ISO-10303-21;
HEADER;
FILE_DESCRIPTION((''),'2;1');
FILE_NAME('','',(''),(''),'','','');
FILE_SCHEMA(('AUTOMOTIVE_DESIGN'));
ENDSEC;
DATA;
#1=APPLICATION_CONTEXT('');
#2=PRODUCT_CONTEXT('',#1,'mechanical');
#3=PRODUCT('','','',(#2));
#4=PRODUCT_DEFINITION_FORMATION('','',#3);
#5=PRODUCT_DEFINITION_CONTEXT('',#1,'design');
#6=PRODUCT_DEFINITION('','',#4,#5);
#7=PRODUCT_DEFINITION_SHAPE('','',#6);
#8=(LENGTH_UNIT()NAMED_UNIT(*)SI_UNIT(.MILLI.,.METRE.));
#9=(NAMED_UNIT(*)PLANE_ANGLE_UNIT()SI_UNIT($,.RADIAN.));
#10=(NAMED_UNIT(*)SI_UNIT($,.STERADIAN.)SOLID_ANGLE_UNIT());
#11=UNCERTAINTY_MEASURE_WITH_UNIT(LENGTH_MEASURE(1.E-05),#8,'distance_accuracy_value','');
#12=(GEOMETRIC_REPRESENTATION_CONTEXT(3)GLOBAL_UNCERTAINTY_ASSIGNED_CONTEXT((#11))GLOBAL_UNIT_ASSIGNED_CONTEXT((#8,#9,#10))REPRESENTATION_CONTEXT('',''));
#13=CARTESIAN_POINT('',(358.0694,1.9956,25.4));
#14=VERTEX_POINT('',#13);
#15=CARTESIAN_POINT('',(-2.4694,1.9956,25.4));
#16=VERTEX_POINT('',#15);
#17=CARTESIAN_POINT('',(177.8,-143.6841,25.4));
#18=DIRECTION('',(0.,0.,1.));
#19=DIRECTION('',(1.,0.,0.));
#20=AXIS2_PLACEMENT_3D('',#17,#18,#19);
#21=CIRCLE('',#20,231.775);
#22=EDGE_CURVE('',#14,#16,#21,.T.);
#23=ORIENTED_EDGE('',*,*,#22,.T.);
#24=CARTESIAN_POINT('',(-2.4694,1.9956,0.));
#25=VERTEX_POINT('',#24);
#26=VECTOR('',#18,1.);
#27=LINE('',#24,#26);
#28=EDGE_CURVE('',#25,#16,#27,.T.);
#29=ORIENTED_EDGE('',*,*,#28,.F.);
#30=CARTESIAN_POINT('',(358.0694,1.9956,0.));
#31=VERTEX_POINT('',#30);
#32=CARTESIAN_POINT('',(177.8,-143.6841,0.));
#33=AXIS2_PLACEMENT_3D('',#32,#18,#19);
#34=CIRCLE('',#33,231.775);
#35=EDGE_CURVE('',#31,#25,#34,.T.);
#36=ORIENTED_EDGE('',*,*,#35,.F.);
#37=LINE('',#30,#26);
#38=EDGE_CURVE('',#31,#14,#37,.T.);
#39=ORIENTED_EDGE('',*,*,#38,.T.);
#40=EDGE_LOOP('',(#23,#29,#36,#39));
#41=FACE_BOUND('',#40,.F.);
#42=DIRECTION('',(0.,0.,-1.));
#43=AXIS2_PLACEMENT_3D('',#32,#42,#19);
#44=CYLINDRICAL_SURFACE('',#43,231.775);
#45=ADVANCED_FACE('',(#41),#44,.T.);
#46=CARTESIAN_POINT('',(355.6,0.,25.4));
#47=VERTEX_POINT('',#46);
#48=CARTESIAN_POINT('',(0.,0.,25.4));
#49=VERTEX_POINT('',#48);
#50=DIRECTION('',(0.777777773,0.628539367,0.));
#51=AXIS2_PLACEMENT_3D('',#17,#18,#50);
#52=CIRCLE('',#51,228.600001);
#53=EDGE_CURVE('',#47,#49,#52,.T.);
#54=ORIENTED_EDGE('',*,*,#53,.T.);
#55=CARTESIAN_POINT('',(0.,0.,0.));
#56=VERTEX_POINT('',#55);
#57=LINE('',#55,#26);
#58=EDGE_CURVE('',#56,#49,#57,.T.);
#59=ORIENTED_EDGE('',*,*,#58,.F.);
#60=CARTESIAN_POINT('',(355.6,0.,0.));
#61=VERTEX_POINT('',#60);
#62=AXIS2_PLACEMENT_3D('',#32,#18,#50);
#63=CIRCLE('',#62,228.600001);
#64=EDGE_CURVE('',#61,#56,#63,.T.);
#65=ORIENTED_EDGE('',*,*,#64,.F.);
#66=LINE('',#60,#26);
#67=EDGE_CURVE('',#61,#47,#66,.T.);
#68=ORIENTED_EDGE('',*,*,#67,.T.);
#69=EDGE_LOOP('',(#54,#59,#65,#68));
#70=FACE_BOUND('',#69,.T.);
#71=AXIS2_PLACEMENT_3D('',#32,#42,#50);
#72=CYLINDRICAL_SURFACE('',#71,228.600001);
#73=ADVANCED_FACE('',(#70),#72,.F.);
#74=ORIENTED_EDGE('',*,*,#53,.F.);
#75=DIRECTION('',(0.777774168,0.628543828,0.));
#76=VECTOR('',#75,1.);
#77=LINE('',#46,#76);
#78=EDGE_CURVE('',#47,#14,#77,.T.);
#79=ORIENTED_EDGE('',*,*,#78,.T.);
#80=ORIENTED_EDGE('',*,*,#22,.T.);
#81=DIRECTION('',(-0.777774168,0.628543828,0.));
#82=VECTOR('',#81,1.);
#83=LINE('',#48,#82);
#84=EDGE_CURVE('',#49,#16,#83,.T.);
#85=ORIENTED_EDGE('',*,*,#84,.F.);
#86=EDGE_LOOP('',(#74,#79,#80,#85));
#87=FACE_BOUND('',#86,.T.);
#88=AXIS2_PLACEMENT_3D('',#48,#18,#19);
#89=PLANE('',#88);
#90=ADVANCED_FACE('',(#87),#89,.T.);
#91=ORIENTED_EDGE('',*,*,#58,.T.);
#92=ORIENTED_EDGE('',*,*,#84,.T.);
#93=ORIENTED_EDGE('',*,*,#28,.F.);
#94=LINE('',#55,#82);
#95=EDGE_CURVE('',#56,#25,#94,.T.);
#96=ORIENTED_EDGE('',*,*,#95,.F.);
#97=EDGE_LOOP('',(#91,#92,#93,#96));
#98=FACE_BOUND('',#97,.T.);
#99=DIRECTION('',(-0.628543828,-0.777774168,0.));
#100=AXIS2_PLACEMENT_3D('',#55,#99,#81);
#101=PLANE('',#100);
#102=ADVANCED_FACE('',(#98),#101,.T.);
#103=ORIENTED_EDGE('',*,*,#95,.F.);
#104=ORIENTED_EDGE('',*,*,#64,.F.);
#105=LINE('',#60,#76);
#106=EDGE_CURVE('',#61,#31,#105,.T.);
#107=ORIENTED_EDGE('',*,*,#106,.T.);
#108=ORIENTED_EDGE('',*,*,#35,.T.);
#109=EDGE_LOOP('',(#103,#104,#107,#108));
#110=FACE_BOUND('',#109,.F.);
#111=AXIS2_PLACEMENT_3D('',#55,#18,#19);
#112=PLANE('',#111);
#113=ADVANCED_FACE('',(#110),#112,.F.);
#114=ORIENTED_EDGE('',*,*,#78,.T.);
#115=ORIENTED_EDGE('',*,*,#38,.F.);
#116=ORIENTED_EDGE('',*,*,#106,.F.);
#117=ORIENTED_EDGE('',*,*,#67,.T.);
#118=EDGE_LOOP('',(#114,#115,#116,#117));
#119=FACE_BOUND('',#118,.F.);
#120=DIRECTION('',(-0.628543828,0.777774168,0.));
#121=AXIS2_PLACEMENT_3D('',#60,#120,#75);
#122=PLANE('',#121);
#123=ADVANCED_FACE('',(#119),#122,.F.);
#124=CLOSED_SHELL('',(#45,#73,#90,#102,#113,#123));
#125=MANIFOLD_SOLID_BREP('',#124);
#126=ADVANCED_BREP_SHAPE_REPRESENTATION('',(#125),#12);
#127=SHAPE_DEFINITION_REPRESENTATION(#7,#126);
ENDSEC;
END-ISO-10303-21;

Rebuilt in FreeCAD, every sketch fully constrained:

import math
import FreeCAD as App
import Part
import Sketcher
Q = App.Units.Quantity

doc = App.newDocument("Part")
params = doc.addObject("Spreadsheet::Sheet", "Params")
for row, (alias, value) in enumerate([
    ("sketch1_radius", "9 in"),
    ("sketch1_radius2", "9.125 in"),
    ("pad1_length", "1 in"),
], start=1):
    params.set(f"A{row}", alias)
    params.set(f"B{row}", "=" + value)
    params.setAlias(f"B{row}", alias)

body = doc.addObject("PartDesign::Body", "Body")

sketch1 = body.newObject("Sketcher::SketchObject", "Sketch")
sketch1.AttachmentSupport = (doc.getObject("XY_Plane"), [""])
sketch1.MapMode = "FlatFace"
sketch1.addGeometry([
    Part.LineSegment(App.Vector(-2.5, 2, 0), App.Vector(0, 0, 0)),
    Part.ArcOfCircle(Part.Circle(App.Vector(177.8, -143.7, 0), App.Vector(0, 0, 1), 228.6), math.radians(39), math.radians(141)),
    Part.LineSegment(App.Vector(355.6, 0, 0), App.Vector(358.1, 2, 0)),
    Part.ArcOfCircle(Part.Circle(App.Vector(177.8, -143.7, 0), App.Vector(0, 0, 1), 231.8), math.radians(39), math.radians(141)),
], False)
sketch1.addConstraint([
    Sketcher.Constraint("Coincident", 0, 2, 1, 2),
    Sketcher.Constraint("Coincident", 1, 1, 2, 1),
    Sketcher.Constraint("Coincident", 2, 2, 3, 1),
    Sketcher.Constraint("Coincident", 3, 2, 0, 1),
    Sketcher.Constraint("Coincident", 0, 2, -1, 1),
    Sketcher.Constraint("Coincident", 3, 3, 1, 3),
    Sketcher.Constraint("PointOnObject", 1, 1, -1),
    Sketcher.Constraint("Horizontal", 2, 2, 3, 2),
    Sketcher.Constraint("Radius", 1, Q("9 in")),
    Sketcher.Constraint("DistanceX", -1, 1, 1, 1, Q("14 in")),
    Sketcher.Constraint("Radius", 3, Q("9.125 in")),
    Sketcher.Constraint("DistanceX", -1, 1, 2, 2, 358.0694),
])
sketch1.setExpression("Constraints[8]", "Params.sketch1_radius")
sketch1.setExpression("Constraints[10]", "Params.sketch1_radius2")
pad1 = body.newObject("PartDesign::Pad", "Pad")
pad1.Profile = sketch1
pad1.setExpression("Length", "Params.pad1_length")

doc.recompute()
